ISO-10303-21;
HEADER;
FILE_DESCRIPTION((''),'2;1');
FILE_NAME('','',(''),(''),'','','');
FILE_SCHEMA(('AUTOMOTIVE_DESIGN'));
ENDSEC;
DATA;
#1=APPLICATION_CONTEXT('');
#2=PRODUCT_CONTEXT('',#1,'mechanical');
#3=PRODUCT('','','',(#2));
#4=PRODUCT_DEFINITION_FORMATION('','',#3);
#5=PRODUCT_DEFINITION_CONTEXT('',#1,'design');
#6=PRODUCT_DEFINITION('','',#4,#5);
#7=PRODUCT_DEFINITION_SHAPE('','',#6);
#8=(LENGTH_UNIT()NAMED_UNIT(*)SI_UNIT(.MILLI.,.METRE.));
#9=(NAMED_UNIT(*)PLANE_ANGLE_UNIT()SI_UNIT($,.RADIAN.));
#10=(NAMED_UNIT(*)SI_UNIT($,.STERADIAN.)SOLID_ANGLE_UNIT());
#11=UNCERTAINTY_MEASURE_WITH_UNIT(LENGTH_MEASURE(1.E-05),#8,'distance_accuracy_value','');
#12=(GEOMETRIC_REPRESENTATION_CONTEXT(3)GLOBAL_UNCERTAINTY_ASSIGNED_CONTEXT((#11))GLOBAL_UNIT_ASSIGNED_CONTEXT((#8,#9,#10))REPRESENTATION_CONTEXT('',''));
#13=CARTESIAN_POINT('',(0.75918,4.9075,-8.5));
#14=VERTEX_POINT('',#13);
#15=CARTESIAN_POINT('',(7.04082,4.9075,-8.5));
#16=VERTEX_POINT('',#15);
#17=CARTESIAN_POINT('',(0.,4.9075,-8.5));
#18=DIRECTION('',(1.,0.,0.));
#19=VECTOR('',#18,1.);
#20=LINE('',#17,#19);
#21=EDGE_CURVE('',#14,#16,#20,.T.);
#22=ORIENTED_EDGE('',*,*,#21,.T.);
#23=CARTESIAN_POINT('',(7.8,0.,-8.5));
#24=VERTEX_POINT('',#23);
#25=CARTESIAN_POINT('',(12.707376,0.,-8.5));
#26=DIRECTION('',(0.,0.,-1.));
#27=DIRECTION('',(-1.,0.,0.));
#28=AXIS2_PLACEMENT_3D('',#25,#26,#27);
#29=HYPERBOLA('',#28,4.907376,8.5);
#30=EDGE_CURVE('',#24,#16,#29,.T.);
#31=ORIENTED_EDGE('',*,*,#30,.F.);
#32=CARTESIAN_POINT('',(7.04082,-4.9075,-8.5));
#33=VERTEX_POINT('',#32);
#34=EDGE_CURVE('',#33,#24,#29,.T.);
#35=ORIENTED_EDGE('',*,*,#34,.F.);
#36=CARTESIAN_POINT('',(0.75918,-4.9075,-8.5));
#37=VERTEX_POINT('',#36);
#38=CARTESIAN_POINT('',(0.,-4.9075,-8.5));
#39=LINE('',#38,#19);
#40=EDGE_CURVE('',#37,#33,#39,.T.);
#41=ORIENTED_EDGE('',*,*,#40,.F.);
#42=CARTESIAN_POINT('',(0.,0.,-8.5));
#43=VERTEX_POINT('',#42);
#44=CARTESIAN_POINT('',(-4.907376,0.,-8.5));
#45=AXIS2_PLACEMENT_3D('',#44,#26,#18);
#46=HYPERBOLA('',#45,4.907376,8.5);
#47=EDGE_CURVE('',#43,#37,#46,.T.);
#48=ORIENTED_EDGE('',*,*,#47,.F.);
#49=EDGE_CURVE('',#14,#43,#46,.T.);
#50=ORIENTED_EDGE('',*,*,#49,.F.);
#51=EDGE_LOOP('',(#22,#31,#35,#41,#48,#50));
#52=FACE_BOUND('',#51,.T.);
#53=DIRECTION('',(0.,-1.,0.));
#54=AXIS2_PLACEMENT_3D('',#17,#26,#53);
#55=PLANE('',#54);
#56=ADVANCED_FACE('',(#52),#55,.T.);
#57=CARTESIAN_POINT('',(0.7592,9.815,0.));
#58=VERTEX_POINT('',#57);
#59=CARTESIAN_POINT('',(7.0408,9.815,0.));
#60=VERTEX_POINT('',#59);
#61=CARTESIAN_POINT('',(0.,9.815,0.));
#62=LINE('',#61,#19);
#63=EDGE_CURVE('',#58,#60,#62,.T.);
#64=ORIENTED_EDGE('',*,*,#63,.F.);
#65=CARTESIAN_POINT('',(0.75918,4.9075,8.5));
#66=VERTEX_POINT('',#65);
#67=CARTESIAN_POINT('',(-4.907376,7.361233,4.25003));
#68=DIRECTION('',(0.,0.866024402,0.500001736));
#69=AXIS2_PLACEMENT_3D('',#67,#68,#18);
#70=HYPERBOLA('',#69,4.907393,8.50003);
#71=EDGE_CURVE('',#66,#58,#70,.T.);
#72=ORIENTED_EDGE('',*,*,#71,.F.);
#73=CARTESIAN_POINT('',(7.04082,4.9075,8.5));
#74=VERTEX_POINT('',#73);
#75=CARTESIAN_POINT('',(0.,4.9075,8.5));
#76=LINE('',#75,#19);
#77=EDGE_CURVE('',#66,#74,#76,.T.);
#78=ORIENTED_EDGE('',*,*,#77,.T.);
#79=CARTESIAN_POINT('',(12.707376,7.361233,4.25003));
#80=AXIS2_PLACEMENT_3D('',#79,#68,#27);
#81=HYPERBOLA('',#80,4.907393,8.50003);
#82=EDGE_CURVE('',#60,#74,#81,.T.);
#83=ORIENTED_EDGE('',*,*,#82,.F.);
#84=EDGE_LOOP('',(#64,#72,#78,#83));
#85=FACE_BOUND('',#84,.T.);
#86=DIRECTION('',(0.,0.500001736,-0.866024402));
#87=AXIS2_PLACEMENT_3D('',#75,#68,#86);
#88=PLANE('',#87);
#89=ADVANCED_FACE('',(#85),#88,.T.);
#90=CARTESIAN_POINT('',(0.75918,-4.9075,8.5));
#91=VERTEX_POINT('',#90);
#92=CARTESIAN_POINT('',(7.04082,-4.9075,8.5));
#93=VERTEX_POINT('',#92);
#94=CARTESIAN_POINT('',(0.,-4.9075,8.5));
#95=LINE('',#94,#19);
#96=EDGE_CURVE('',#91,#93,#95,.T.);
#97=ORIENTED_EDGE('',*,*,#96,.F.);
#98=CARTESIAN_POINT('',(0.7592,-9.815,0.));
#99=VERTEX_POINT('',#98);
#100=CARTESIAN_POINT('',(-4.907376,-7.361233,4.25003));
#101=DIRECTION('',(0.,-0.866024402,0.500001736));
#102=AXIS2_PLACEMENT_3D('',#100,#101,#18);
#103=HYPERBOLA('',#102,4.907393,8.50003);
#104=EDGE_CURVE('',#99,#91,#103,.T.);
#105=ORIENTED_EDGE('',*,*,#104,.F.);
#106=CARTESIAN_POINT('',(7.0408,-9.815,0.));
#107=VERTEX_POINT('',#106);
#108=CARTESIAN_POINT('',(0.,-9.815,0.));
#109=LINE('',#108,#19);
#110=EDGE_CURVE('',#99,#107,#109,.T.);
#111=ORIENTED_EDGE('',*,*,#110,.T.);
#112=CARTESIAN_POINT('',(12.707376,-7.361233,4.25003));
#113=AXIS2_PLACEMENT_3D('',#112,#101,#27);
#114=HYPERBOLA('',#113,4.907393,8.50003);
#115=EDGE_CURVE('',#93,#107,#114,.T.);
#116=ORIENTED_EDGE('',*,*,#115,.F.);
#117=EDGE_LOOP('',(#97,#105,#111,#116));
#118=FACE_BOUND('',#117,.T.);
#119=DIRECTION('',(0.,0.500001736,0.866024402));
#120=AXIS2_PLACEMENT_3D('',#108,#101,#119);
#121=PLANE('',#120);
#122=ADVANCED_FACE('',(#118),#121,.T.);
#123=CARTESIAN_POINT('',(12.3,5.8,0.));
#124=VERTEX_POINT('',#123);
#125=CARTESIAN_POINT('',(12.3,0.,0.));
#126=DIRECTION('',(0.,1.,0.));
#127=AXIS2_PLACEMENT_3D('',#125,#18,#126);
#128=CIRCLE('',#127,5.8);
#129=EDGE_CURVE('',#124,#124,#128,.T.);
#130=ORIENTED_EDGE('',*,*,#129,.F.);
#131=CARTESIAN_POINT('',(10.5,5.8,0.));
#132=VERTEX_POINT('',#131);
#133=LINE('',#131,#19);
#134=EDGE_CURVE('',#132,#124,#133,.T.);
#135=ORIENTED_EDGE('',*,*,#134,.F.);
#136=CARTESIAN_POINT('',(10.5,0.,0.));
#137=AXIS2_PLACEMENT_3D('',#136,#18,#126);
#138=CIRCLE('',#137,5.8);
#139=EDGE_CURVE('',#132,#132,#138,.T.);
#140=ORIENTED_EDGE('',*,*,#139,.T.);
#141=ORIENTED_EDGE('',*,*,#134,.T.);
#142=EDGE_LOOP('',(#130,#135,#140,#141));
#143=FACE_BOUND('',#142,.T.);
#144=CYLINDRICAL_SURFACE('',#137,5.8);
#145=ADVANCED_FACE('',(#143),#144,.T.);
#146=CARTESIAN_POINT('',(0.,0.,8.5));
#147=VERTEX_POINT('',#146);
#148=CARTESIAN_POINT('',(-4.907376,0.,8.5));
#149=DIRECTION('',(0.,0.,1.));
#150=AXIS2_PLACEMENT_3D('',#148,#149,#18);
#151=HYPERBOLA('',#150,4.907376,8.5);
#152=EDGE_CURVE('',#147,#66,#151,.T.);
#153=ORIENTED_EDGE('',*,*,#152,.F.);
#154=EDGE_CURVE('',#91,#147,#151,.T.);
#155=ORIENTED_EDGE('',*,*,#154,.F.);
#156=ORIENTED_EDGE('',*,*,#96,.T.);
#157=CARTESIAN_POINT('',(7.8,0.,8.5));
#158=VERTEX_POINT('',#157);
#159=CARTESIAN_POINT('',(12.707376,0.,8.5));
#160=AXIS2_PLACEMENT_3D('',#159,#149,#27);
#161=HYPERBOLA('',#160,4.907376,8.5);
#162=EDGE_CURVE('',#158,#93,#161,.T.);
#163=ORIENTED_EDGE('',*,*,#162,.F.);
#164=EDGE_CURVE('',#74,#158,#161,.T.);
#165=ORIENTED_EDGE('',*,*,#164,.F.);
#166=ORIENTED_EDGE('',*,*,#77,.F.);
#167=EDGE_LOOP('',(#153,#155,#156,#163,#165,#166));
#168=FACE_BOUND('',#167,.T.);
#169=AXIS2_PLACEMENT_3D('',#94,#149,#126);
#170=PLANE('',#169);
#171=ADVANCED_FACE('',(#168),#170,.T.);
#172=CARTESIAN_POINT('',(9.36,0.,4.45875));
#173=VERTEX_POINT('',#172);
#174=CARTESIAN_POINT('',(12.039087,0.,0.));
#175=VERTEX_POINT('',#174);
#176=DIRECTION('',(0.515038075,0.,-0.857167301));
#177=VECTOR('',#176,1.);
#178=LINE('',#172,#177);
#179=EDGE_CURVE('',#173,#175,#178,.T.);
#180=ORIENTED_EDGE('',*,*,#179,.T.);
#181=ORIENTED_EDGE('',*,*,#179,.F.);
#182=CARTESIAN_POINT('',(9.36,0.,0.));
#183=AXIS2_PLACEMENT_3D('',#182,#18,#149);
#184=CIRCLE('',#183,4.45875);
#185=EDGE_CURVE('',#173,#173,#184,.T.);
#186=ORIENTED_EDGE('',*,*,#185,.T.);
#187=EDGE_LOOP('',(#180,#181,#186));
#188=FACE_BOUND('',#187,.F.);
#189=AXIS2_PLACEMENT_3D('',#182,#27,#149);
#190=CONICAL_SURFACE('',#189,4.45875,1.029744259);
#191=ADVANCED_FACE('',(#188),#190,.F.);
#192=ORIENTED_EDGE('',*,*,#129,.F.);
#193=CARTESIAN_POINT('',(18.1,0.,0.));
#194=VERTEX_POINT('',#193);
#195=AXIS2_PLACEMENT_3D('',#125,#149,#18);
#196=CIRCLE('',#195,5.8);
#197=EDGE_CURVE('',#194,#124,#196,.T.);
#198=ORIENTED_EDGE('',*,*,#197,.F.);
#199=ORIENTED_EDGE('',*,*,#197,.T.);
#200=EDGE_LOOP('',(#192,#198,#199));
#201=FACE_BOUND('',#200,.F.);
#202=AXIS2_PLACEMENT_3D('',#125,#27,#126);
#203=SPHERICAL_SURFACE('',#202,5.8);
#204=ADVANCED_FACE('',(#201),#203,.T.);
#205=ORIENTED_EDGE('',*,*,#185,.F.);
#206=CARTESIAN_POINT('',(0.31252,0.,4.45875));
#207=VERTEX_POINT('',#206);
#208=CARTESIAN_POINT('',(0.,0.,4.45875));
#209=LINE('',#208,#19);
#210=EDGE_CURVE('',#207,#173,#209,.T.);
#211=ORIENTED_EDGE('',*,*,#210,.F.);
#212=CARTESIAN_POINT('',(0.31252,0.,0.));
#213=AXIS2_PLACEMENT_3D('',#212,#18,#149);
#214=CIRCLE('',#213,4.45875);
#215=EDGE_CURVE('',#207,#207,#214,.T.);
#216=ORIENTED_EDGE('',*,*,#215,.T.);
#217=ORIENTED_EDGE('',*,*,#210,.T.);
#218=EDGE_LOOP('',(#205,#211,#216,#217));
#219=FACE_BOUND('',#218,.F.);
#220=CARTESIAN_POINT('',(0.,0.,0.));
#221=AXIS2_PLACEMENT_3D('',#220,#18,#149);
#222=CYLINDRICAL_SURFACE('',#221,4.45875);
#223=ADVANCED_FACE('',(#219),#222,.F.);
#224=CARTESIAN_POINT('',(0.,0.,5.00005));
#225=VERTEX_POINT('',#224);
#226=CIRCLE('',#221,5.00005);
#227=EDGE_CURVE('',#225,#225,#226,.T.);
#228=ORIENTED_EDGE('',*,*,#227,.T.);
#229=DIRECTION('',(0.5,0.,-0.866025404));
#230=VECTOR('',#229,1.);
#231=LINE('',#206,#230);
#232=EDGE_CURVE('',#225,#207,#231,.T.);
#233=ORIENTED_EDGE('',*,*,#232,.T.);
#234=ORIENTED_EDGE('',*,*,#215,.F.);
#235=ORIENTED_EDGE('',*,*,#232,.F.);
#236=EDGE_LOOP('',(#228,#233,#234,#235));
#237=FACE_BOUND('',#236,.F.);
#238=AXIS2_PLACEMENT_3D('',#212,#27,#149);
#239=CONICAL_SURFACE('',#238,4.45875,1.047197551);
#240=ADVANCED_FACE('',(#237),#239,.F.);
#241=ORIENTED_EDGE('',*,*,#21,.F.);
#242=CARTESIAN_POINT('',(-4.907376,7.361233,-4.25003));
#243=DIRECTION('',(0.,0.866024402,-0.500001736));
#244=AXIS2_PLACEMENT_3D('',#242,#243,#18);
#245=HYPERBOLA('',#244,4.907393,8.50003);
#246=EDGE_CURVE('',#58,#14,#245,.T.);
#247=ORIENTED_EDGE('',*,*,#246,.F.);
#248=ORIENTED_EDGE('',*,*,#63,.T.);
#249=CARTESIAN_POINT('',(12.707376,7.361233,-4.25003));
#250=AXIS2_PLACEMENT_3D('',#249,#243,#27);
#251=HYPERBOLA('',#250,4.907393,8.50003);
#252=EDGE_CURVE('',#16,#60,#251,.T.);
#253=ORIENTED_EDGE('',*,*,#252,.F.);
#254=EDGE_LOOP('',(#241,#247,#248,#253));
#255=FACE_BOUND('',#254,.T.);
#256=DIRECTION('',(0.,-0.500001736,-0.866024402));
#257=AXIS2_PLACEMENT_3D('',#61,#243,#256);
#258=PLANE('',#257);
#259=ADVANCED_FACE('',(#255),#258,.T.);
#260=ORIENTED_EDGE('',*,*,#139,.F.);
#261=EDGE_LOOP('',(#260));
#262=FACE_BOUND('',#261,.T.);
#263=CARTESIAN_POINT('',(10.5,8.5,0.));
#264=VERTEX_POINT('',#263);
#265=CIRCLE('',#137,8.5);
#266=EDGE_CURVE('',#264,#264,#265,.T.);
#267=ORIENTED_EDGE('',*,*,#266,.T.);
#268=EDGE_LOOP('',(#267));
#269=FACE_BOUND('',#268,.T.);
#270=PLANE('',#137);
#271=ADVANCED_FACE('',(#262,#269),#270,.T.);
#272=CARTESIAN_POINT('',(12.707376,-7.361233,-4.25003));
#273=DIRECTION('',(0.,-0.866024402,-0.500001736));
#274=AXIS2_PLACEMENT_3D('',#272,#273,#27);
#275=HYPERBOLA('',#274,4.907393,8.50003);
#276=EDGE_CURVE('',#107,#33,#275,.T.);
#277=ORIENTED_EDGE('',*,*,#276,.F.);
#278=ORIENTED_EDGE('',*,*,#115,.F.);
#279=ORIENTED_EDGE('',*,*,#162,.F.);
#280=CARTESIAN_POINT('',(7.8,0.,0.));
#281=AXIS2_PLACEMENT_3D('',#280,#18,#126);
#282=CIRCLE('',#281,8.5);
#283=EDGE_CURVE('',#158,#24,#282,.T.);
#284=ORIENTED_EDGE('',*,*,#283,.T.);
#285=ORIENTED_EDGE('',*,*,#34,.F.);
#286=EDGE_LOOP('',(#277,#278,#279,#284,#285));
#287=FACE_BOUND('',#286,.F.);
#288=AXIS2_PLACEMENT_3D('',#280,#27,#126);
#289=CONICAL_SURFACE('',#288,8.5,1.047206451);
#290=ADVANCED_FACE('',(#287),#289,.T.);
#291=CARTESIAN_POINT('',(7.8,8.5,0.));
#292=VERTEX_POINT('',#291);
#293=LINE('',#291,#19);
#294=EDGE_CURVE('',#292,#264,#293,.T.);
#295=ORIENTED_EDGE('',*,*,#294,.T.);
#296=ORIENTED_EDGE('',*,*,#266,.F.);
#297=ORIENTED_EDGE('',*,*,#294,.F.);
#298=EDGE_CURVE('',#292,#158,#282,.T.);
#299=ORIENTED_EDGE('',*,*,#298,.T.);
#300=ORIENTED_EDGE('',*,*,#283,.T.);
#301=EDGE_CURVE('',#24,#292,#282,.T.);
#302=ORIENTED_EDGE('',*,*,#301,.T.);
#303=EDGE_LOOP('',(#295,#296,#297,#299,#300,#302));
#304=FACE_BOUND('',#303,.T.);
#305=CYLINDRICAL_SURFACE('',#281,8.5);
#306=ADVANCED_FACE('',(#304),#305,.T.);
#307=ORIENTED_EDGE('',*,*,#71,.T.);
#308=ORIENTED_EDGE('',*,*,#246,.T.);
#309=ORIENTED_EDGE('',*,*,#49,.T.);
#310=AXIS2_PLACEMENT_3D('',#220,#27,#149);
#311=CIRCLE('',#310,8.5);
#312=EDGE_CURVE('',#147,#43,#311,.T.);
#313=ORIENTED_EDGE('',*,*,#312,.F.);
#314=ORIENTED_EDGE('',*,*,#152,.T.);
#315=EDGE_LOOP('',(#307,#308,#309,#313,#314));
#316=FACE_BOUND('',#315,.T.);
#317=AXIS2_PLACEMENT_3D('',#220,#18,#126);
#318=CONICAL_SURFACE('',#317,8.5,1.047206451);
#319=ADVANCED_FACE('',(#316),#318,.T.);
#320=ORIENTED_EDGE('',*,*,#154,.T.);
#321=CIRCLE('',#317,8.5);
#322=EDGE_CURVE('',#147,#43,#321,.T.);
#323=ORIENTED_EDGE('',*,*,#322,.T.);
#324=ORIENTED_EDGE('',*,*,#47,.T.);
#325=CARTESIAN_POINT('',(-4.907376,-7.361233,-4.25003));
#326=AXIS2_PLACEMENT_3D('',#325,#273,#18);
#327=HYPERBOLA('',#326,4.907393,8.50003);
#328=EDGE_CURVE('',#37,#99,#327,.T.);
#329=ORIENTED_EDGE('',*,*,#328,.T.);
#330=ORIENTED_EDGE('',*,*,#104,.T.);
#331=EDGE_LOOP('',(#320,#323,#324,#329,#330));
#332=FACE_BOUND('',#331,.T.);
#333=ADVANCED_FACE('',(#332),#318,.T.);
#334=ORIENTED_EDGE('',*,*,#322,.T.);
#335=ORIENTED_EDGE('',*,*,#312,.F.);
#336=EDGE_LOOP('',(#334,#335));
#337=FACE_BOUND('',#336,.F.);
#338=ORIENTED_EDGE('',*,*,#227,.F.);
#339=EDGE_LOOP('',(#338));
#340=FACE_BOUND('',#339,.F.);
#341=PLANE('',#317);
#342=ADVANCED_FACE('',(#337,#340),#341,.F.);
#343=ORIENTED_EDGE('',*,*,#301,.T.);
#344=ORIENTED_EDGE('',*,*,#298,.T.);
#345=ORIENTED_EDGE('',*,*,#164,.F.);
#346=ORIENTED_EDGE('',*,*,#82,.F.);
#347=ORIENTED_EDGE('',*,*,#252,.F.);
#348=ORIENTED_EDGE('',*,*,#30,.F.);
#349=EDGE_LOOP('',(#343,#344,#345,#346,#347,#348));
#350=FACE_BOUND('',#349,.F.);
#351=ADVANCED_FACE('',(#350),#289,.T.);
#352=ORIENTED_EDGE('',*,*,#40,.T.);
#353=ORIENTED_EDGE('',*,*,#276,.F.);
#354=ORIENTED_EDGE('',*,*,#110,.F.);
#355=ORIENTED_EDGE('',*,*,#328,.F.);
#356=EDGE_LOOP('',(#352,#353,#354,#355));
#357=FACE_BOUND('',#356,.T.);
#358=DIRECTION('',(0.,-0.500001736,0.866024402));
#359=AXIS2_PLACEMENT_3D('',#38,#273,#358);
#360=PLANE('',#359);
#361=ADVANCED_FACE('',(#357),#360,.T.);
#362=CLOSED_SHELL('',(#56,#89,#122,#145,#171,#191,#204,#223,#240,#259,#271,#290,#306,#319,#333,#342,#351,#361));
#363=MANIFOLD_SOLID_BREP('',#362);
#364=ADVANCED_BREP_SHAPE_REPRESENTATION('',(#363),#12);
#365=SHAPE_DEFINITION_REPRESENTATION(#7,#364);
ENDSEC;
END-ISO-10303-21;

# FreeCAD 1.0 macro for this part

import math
import FreeCAD as App
import Part
import Sketcher
Q = App.Units.Quantity


def edges_at(feature, points):
    """Names of the edges that pass closest to the given points."""
    edges = feature.Shape.Edges
    near = lambda p: min(range(len(edges)), key=lambda i: edges[i].distToShape(Part.Vertex(*p))[0])
    return sorted({f"Edge{near(p) + 1}" for p in points})


def add_polygon(sketch, points):
    """Adds a closed chain of lines whose ends are joined by coincident constraints."""
    first, n = sketch.GeometryCount, len(points)
    for a, b in zip(points, points[1:] + points[:1]):
        sketch.addGeometry(Part.LineSegment(App.Vector(*a, 0), App.Vector(*b, 0)), False)
    for i in range(n):
        sketch.addConstraint(Sketcher.Constraint("Coincident", first + i, 2, first + (i + 1) % n, 1))

doc = App.newDocument("Part")
body = doc.addObject("PartDesign::Body", "Body")

# Sketch on YZ plane
sketch1 = doc.addObject("Sketcher::SketchObject", "Sketch")
body.addObject(sketch1)
sketch1.AttachmentSupport = (doc.YZ_Plane, [""])
sketch1.MapMode = "FlatFace"
add_polygon(sketch1, [(-4.9075, 8.5), (-9.815, 0), (-4.9075, -8.5), (4.9075, -8.5), (9.815, 0), (4.9075, 8.5)])  # lines 0-5
sketch1.addConstraint([
    Sketcher.Constraint("Horizontal", 2),
    Sketcher.Constraint("Horizontal", 5),
    Sketcher.Constraint("Symmetric", 0, 2, 3, 2, -1, 1),
    Sketcher.Constraint("Symmetric", 1, 2, 4, 2, -1, 1),
    Sketcher.Constraint("PointOnObject", 0, 2, -1),
    Sketcher.Constraint("Parallel", 0, 3),
    Sketcher.Constraint("Vertical", 2, 2, 4, 2),
    Sketcher.Constraint("Angle", 0, Q("-120 deg")),
    Sketcher.Constraint("DistanceX", 0, 2, 3, 2, 19.63),
    Sketcher.Constraint("DistanceY", 2, 2, 4, 2, 17.0),
])
pad1 = doc.addObject("PartDesign::Pad", "Pad")
body.addObject(pad1)
pad1.Profile = sketch1
pad1.Length = 7.8

# Sketch on XY plane
sketch2 = doc.addObject("Sketcher::SketchObject", "Sketch001")
body.addObject(sketch2)
sketch2.AttachmentSupport = (doc.XY_Plane, [""])
sketch2.MapMode = "FlatFace"
sketch2.addGeometry([
    Part.LineSegment(App.Vector(10.5, 8.5, 0), App.Vector(7.8, 8.5, 0)),  # 0
    Part.LineSegment(App.Vector(7.8, 8.5, 0), App.Vector(7.8, 0, 0)),  # 1
    Part.LineSegment(App.Vector(7.8, 0, 0), App.Vector(18.1, 0, 0)),  # 2
    Part.ArcOfCircle(Part.Circle(App.Vector(12.3, 0, 0), App.Vector(0, 0, 1), 5.8), math.radians(0), math.radians(90)),  # 3
    Part.LineSegment(App.Vector(12.3, 5.8, 0), App.Vector(10.5, 5.8, 0)),  # 4
    Part.LineSegment(App.Vector(10.5, 5.8, 0), App.Vector(10.5, 8.5, 0)),  # 5
], False)
sketch2.addConstraint([
    Sketcher.Constraint("Coincident", 0, 2, 1, 1),
    Sketcher.Constraint("Coincident", 1, 2, 2, 1),
    Sketcher.Constraint("Coincident", 2, 2, 3, 1),
    Sketcher.Constraint("Tangent", 3, 2, 4, 1),
    Sketcher.Constraint("Coincident", 4, 2, 5, 1),
    Sketcher.Constraint("Coincident", 5, 2, 0, 1),
    Sketcher.Constraint("Horizontal", 0),
    Sketcher.Constraint("Vertical", 1),
    Sketcher.Constraint("Horizontal", 2),
    Sketcher.Constraint("Horizontal", 4),
    Sketcher.Constraint("Vertical", 5),
    Sketcher.Constraint("PointOnObject", 3, 3, -1),
    Sketcher.Constraint("PointOnObject", 1, 2, -1),
    Sketcher.Constraint("Equal", 0, 5),
    Sketcher.Constraint("Radius", 3, 5.8),
    Sketcher.Constraint("DistanceX", -1, 1, 2, 2, 18.1),
    Sketcher.Constraint("DistanceX", -1, 1, 4, 2, 10.5),
    Sketcher.Constraint("DistanceX", 0, 2, 0, 1, 2.7),
])
revolution = doc.addObject("PartDesign::Revolution", "Revolution")
body.addObject(revolution)
revolution.Profile = sketch2
revolution.ReferenceAxis = (sketch2, ["H_Axis"])
revolution.Angle = 360

# Sketch on YZ plane
sketch3 = doc.addObject("Sketcher::SketchObject", "Sketch002")
body.addObject(sketch3)
sketch3.AttachmentSupport = (doc.YZ_Plane, [""])
sketch3.MapMode = "FlatFace"
sketch3.addGeometry(Part.Circle(App.Vector(0, 0, 0), App.Vector(0, 0, 1), 4.45875), False)
sketch3.addConstraint([
    Sketcher.Constraint("Coincident", 0, 3, -1, 1),
    Sketcher.Constraint("Diameter", 0, 8.9175),
])
doc.recompute()
hole = doc.addObject("PartDesign::Hole", "Hole")
body.addObject(hole)
hole.Profile = sketch3
hole.ThreadType = "None"
hole.Diameter = 8.9175
hole.DepthType = "Dimension"
hole.Depth = 9.36
hole.DrillPoint = "Angled"
hole.DrillPointAngle = 118
hole.Reversed = True

# Sketch on XY plane
sketch4 = doc.addObject("Sketcher::SketchObject", "Sketch003")
body.addObject(sketch4)
sketch4.AttachmentSupport = (doc.XY_Plane, [""])
sketch4.MapMode = "FlatFace"
add_polygon(sketch4, [(7.8, 9.815), (7.0408, 9.815), (7.8, 8.5)])  # lines 0-2
add_polygon(sketch4, [(0, 9.815), (0, 8.5), (0.7592, 9.815)])  # lines 3-5
sketch4.addConstraint([
    Sketcher.Constraint("Horizontal", 0),
    Sketcher.Constraint("Vertical", 2),
    Sketcher.Constraint("Vertical", 3),
    Sketcher.Constraint("Horizontal", 5),
    Sketcher.Constraint("PointOnObject", 3, 2, -2),
    Sketcher.Constraint("Horizontal", 1, 2, 3, 2),
    Sketcher.Constraint("Horizontal", 2, 2, 4, 2),
    Sketcher.Constraint("Equal", 0, 5),
    Sketcher.Constraint("Angle", 1, Q("-60.0005 deg")),
    Sketcher.Constraint("DistanceX", -1, 1, 1, 2, 7.8),
    Sketcher.Constraint("DistanceY", -1, 1, 1, 2, 8.5),
    Sketcher.Constraint("DistanceY", 2, 1, 2, 2, 1.315),
])
groove = doc.addObject("PartDesign::Groove", "Groove")
body.addObject(groove)
groove.Profile = sketch4
groove.ReferenceAxis = (sketch4, ["H_Axis"])
groove.Angle = 360
doc.recompute()

chamfer = doc.addObject("PartDesign::Chamfer", "Chamfer")
body.addObject(chamfer)
chamfer.Base = (groove, edges_at(groove, [(0, 0, -4.459)]))
chamfer.ChamferType = "Distance and Angle"
chamfer.Size = 0.5413
chamfer.Angle = 30

doc.recompute()
